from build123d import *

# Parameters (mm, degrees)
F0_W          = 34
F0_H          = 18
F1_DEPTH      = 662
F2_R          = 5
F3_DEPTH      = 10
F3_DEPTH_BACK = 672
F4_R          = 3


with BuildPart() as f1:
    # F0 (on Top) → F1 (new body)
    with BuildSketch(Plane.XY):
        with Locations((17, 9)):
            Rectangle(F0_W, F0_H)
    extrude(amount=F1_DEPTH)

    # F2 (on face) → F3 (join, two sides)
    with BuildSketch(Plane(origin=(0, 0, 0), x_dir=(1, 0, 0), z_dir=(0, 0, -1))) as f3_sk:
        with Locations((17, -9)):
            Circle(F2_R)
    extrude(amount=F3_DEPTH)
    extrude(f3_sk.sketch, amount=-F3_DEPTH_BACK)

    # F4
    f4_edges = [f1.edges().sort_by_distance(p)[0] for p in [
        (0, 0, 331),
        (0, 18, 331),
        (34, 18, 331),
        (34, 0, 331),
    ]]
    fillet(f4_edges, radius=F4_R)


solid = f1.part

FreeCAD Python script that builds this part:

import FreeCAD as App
import Part
import Sketcher


def edges_at(feature, points):
    """Names of the edges that pass closest to the given points."""
    edges = feature.Shape.Edges
    near = lambda p: min(range(len(edges)), key=lambda i: edges[i].distToShape(Part.Vertex(*p))[0])
    return sorted({f"Edge{near(p) + 1}" for p in points})


def add_polygon(sketch, points):
    """Adds a closed chain of lines whose ends are joined by coincident constraints."""
    first, n = sketch.GeometryCount, len(points)
    for a, b in zip(points, points[1:] + points[:1]):
        sketch.addGeometry(Part.LineSegment(App.Vector(*a, 0), App.Vector(*b, 0)), False)
    for i in range(n):
        sketch.addConstraint(Sketcher.Constraint("Coincident", first + i, 2, first + (i + 1) % n, 1))

doc = App.newDocument("Part")
body = doc.addObject("PartDesign::Body", "Body")

# Sketch on XY plane
sketch1 = body.newObject("Sketcher::SketchObject", "Sketch")
sketch1.AttachmentSupport = (doc.getObject("XY_Plane"), [""])
sketch1.MapMode = "FlatFace"
add_polygon(sketch1, [(0, 18), (0, 0), (34, 0), (34, 18)])  # lines 0-3
sketch1.addConstraint(Sketcher.Constraint("Vertical", 0))
sketch1.addConstraint(Sketcher.Constraint("Horizontal", 1))
sketch1.addConstraint(Sketcher.Constraint("Vertical", 2))
sketch1.addConstraint(Sketcher.Constraint("Horizontal", 3))
sketch1.addConstraint(Sketcher.Constraint("Coincident", 0, 2, -1, 1))
sketch1.addConstraint(Sketcher.Constraint("DistanceX", 1, 1, 1, 2, 34.0))
sketch1.addConstraint(Sketcher.Constraint("DistanceY", 0, 2, 0, 1, 18.0))
pad1 = body.newObject("PartDesign::Pad", "Pad")
pad1.Profile = sketch1
pad1.Length = 662

# Sketch on XY plane
sketch2 = body.newObject("Sketcher::SketchObject", "Sketch001")
sketch2.AttachmentSupport = (doc.getObject("XY_Plane"), [""])
sketch2.MapMode = "FlatFace"
sketch2.addGeometry(Part.Circle(App.Vector(17, 9, 0), App.Vector(0, 0, 1), 5), False)
sketch2.addConstraint(Sketcher.Constraint("Diameter", 0, 10.0))
sketch2.addConstraint(Sketcher.Constraint("DistanceX", -1, 1, 0, 3, 17.0))
sketch2.addConstraint(Sketcher.Constraint("DistanceY", -1, 1, 0, 3, 9.0))
pad2 = body.newObject("PartDesign::Pad", "Pad001")
pad2.Profile = sketch2
pad2.Type = "TwoLengths"
pad2.Length = 10
pad2.Length2 = 672
pad2.Reversed = True
doc.recompute()

fillet = body.newObject("PartDesign::Fillet", "Fillet")
fillet.Base = (pad2, edges_at(pad2, [
    (0, 0, 331),
    (0, 18, 331),
    (34, 18, 331),
    (34, 0, 331),
]))
fillet.Radius = 3

doc.recompute()
